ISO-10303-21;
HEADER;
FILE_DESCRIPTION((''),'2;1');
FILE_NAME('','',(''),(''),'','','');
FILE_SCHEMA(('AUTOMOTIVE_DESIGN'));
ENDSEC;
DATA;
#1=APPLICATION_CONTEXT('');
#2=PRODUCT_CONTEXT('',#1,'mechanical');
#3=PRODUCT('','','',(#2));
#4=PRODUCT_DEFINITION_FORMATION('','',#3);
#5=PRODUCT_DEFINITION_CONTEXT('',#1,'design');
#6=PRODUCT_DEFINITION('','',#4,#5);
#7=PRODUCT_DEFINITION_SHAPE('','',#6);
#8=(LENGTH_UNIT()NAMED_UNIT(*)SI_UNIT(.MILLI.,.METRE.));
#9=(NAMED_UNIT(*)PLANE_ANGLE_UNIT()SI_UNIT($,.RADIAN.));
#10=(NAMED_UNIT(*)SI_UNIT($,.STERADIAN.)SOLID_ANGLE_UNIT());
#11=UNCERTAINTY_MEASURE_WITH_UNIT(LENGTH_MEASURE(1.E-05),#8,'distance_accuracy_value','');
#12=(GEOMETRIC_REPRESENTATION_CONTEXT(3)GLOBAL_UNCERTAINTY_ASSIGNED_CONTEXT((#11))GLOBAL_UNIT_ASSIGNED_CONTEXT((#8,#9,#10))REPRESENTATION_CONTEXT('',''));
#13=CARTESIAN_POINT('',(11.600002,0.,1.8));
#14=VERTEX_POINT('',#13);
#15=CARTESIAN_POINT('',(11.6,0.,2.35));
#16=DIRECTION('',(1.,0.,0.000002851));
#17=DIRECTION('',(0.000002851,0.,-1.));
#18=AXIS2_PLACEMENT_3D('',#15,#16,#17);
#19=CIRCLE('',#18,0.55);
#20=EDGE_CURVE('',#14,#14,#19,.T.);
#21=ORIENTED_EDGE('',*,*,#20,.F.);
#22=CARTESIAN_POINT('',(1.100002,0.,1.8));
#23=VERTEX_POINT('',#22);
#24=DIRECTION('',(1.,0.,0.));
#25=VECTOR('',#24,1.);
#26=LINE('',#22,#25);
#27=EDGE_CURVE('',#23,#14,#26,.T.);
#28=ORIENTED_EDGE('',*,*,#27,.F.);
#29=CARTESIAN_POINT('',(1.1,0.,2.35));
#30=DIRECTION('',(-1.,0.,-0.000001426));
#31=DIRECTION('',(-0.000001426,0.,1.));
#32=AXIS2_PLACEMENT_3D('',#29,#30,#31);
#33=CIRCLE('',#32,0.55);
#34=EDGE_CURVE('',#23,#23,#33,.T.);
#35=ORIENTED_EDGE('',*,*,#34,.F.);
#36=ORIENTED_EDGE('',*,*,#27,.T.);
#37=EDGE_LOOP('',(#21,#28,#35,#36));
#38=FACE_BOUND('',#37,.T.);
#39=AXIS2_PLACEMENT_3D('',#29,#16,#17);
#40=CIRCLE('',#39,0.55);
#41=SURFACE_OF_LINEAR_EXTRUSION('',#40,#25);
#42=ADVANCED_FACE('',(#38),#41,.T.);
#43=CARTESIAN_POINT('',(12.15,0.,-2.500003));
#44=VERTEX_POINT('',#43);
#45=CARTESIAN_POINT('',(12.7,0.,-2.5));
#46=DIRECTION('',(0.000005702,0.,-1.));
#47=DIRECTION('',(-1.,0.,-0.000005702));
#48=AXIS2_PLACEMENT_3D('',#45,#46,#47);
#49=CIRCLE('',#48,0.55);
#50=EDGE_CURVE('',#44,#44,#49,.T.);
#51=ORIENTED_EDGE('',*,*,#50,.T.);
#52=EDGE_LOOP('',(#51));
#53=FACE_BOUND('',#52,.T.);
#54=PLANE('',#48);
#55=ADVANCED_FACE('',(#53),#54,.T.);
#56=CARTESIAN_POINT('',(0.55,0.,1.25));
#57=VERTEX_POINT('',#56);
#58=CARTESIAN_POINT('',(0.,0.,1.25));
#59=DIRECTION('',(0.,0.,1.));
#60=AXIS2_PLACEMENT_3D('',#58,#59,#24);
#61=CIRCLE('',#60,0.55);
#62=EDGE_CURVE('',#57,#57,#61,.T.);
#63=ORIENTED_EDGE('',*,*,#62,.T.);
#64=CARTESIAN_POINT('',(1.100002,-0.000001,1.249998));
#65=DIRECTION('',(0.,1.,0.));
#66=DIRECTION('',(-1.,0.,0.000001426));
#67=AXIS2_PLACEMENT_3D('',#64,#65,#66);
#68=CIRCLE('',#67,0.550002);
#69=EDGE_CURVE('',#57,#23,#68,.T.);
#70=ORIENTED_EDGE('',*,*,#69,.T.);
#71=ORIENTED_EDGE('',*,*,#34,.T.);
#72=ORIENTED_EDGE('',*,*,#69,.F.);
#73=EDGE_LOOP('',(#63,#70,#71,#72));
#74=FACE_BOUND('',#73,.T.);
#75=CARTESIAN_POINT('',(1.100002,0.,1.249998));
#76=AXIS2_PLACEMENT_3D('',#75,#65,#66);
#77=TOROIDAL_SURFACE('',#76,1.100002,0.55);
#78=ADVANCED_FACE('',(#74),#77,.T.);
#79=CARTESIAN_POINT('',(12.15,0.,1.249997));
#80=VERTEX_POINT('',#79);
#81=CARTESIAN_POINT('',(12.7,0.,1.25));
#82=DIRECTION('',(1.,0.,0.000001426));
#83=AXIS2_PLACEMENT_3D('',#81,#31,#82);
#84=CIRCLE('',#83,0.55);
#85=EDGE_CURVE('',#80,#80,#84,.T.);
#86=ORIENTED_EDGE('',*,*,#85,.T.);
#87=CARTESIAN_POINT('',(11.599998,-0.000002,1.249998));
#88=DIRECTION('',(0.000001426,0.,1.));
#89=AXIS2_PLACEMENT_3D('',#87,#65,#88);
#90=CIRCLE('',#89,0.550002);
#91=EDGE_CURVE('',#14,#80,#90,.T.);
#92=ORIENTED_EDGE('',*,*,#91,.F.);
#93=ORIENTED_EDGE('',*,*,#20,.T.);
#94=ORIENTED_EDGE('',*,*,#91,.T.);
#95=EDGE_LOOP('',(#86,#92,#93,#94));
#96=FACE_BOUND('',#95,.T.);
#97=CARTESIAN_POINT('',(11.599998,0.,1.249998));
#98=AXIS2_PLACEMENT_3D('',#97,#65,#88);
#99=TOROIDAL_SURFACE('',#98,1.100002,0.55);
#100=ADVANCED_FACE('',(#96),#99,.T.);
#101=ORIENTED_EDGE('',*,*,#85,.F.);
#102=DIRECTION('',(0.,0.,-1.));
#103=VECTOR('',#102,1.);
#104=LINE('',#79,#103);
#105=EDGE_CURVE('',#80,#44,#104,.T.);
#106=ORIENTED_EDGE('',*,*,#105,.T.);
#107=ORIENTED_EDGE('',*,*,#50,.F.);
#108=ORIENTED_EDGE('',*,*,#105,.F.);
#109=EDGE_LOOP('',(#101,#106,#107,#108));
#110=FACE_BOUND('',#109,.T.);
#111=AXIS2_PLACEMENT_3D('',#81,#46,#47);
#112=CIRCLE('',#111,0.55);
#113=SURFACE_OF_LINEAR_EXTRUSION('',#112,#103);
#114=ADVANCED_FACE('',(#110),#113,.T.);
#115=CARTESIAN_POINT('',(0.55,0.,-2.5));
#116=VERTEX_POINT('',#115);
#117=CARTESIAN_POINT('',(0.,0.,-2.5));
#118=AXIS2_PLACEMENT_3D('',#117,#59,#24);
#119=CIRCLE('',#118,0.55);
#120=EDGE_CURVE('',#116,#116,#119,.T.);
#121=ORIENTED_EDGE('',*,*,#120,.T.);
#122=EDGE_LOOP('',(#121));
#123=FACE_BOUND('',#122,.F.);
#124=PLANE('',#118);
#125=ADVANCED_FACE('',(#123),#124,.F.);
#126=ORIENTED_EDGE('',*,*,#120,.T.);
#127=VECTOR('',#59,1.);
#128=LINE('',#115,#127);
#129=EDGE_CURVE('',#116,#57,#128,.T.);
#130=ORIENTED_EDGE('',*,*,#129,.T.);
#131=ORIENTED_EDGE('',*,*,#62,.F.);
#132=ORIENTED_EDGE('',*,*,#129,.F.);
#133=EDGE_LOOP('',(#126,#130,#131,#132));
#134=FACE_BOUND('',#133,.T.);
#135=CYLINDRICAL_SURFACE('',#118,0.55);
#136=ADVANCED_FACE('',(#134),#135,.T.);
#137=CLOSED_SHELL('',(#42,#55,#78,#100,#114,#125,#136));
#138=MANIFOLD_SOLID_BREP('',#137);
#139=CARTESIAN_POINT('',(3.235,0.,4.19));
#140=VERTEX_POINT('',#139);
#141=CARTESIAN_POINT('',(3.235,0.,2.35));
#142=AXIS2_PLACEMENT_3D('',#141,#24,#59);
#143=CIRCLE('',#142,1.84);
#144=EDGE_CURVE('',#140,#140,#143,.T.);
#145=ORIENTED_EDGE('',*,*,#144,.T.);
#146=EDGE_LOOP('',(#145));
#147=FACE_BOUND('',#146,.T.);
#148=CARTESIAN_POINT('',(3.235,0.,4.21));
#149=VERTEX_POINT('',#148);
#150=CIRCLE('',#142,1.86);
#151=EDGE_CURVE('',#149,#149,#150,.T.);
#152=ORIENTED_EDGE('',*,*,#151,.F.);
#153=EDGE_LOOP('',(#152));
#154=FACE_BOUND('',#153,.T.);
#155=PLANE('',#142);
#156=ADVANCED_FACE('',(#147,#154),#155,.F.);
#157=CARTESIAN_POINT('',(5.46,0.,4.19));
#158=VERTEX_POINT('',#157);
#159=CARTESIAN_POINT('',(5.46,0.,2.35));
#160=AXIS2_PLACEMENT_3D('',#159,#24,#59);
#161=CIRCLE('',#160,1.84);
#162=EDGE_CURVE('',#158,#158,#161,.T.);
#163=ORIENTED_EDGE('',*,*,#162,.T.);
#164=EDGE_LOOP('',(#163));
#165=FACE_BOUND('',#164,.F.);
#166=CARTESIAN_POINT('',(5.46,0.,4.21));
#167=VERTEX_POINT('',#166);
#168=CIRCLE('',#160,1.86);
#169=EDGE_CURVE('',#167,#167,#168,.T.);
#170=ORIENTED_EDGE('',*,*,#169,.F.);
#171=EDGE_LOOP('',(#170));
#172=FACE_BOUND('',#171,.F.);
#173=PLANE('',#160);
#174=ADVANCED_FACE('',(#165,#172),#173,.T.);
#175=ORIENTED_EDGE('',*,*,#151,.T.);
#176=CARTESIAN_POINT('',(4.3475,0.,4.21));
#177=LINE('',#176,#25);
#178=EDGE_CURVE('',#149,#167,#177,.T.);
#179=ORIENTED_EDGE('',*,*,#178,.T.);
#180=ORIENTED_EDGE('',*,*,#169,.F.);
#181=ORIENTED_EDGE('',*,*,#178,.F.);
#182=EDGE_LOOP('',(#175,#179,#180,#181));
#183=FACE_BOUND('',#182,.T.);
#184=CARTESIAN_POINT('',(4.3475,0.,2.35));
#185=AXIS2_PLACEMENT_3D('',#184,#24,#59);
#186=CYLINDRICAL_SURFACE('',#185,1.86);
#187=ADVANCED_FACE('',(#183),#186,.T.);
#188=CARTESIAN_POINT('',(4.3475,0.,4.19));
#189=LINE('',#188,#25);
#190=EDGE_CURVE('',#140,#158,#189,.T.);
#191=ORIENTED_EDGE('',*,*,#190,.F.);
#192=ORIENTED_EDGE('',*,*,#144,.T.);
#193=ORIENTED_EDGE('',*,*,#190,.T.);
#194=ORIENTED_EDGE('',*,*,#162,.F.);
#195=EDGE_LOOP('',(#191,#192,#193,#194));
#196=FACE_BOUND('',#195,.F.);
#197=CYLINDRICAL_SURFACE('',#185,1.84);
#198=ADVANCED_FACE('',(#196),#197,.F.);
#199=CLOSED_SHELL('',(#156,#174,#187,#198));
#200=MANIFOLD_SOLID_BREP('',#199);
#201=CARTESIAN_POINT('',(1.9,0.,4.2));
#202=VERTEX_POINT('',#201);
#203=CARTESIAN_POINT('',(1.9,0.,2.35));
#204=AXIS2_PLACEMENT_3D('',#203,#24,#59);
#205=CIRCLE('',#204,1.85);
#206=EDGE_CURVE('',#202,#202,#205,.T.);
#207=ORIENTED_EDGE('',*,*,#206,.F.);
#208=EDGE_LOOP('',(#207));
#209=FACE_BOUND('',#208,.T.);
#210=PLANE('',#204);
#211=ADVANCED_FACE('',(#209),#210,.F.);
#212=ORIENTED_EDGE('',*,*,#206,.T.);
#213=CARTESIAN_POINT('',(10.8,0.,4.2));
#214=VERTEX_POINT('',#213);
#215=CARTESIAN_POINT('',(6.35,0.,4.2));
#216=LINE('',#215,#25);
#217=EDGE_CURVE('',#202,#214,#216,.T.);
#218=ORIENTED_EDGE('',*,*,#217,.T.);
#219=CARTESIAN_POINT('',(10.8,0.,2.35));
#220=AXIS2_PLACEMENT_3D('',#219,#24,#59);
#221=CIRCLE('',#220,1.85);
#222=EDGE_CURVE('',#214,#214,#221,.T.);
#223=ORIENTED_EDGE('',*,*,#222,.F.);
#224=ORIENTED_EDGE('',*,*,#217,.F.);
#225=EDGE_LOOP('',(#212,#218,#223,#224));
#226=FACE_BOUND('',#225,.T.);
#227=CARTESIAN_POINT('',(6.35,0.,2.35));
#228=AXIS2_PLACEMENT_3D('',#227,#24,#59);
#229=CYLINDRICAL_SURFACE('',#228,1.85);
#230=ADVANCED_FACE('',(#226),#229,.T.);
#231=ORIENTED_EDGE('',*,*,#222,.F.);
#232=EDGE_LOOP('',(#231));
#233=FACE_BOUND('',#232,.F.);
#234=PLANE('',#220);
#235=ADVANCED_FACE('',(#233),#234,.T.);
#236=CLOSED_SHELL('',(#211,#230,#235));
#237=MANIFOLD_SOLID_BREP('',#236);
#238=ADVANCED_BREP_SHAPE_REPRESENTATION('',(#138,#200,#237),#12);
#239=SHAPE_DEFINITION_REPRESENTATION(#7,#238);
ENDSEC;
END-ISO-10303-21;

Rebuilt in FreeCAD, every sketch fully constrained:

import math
import FreeCAD as App
import Part
import Sketcher


def add_polygon(sketch, points):
    """Adds a closed chain of lines whose ends are joined by coincident constraints."""
    first, n = sketch.GeometryCount, len(points)
    for a, b in zip(points, points[1:] + points[:1]):
        sketch.addGeometry(Part.LineSegment(App.Vector(*a, 0), App.Vector(*b, 0)), False)
    for i in range(n):
        sketch.addConstraint(Sketcher.Constraint("Coincident", first + i, 2, first + (i + 1) % n, 1))

doc = App.newDocument("Part")
body = doc.addObject("PartDesign::Body", "Body")

# Sketch on XZ plane
sketch1 = body.newObject("Sketcher::SketchObject", "Sketch")
sketch1.AttachmentSupport = (doc.getObject("XZ_Plane"), [""])
sketch1.MapMode = "FlatFace"
add_polygon(sketch1, [(1.9, 4.2), (1.9, 2.35), (10.8, 2.35), (10.8, 4.2)])  # lines 0-3
sketch1.addGeometry(Part.LineSegment(App.Vector(1.9, 2.35, 0), App.Vector(10.8, 2.35, 0)), True)  # axis
sketch1.addConstraint([
    Sketcher.Constraint("Vertical", 0),
    Sketcher.Constraint("Horizontal", 1),
    Sketcher.Constraint("Vertical", 2),
    Sketcher.Constraint("Horizontal", 3),
    Sketcher.Constraint("Horizontal", 4),
    Sketcher.Constraint("Coincident", 4, 1, 0, 2),
    Sketcher.Constraint("Vertical", 2, 2, 4, 2),
    Sketcher.Constraint("DistanceX", 1, 1, 1, 2, 8.9),
    Sketcher.Constraint("DistanceY", 0, 2, 0, 1, 1.85),
    Sketcher.Constraint("DistanceX", -1, 1, 0, 2, 1.9),
    Sketcher.Constraint("DistanceY", -1, 1, 2, 2, 4.2),
])
revolution = body.newObject("PartDesign::Revolution", "Revolution")
revolution.Profile = sketch1
revolution.ReferenceAxis = (sketch1, ["Axis0"])
revolution.Angle = 360
body2 = doc.addObject("PartDesign::Body", "Body001")

# Sketch on XZ plane
sketch2 = body2.newObject("Sketcher::SketchObject", "Sketch001")
sketch2.AttachmentSupport = (doc.getObject("XZ_Plane001"), [""])
sketch2.MapMode = "FlatFace"
add_polygon(sketch2, [(3.235, 4.21), (3.235, 4.19), (5.46, 4.19), (5.46, 4.21)])  # lines 0-3
sketch2.addGeometry(Part.LineSegment(App.Vector(3.235, 2.35, 0), App.Vector(5.46, 2.35, 0)), True)  # axis
sketch2.addConstraint([
    Sketcher.Constraint("Vertical", 0),
    Sketcher.Constraint("Horizontal", 1),
    Sketcher.Constraint("Vertical", 2),
    Sketcher.Constraint("Horizontal", 3),
    Sketcher.Constraint("Horizontal", 4),
    Sketcher.Constraint("Vertical", 3, 2, 4, 1),
    Sketcher.Constraint("Vertical", 2, 2, 4, 2),
    Sketcher.Constraint("DistanceY", 0, 2, 0, 1, 0.02),
    Sketcher.Constraint("DistanceX", 1, 1, 1, 2, 2.225),
    Sketcher.Constraint("DistanceY", -1, 1, 0, 2, 4.19),
    Sketcher.Constraint("DistanceX", -1, 1, 1, 2, 5.46),
    Sketcher.Constraint("DistanceY", -1, 1, 4, 1, 2.35),
])
revolution2 = body2.newObject("PartDesign::Revolution", "Revolution001")
revolution2.Profile = sketch2
revolution2.ReferenceAxis = (sketch2, ["Axis0"])
revolution2.Angle = 360
body3 = doc.addObject("PartDesign::Body", "Body002")

# Sketch on XY plane
sketch3 = body3.newObject("Sketcher::SketchObject", "Sketch002")
sketch3.AttachmentSupport = (doc.getObject("XY_Plane002"), [""])
sketch3.MapMode = "FlatFace"
sketch3.AttachmentOffset = App.Placement(App.Vector(0, 0, -2), App.Rotation())
sketch3.addGeometry(Part.Circle(App.Vector(0, 0, 0), App.Vector(0, 0, 1), 0.55), False)
sketch3.addConstraint([
    Sketcher.Constraint("Coincident", 0, 3, -1, 1),
    Sketcher.Constraint("Diameter", 0, 1.1),
])

# Sketch on XZ plane
sketch4 = body3.newObject("Sketcher::SketchObject", "Sketch003")
sketch4.AttachmentSupport = (doc.getObject("XZ_Plane002"), [""])
sketch4.MapMode = "FlatFace"
sketch4.addGeometry([
    Part.LineSegment(App.Vector(0, -2.5, 0), App.Vector(0, 1.25, 0)),  # 0
    Part.ArcOfCircle(Part.Circle(App.Vector(1.100002, 1.249998, 0), App.Vector(0, 0, 1), 1.100002), math.radians(90.000082), math.radians(179.999918)),  # 1
    Part.LineSegment(App.Vector(1.1, 2.35, 0), App.Vector(11.6, 2.35, 0)),  # 2
    Part.ArcOfCircle(Part.Circle(App.Vector(11.599998, 1.249998, 0), App.Vector(0, 0, 1), 1.100002), math.radians(0.000082), math.radians(89.999918)),  # 3
    Part.LineSegment(App.Vector(12.7, 1.25, 0), App.Vector(12.7, -2.5, 0)),  # 4
], False)
sketch4.addConstraint([
    Sketcher.Constraint("Tangent", 0, 2, 1, 2),
    Sketcher.Constraint("Tangent", 1, 1, 2, 1),
    Sketcher.Constraint("Tangent", 2, 2, 3, 2),
    Sketcher.Constraint("Tangent", 3, 1, 4, 1),
    Sketcher.Constraint("Vertical", 0),
    Sketcher.Constraint("Horizontal", 2),
    Sketcher.Constraint("Vertical", 4),
    Sketcher.Constraint("Equal", 1, 3),
    Sketcher.Constraint("PointOnObject", 0, 1, -2),
    Sketcher.Constraint("Horizontal", 0, 1, 4, 2),
    Sketcher.Constraint("Radius", 1, 1.100002),
    Sketcher.Constraint("DistanceX", 2, 1, 2, 2, 10.5),
    Sketcher.Constraint("DistanceY", 0, 1, 0, 2, 3.75),
    Sketcher.Constraint("DistanceY", 0, 1, -1, 1, 2.5),
])
doc.recompute()

additivepipe = body3.newObject("PartDesign::AdditivePipe", "AdditivePipe")
additivepipe.Profile = sketch3
additivepipe.Spine = (sketch4, ["Edge1", "Edge2", "Edge3", "Edge4", "Edge5"])

doc.recompute()
